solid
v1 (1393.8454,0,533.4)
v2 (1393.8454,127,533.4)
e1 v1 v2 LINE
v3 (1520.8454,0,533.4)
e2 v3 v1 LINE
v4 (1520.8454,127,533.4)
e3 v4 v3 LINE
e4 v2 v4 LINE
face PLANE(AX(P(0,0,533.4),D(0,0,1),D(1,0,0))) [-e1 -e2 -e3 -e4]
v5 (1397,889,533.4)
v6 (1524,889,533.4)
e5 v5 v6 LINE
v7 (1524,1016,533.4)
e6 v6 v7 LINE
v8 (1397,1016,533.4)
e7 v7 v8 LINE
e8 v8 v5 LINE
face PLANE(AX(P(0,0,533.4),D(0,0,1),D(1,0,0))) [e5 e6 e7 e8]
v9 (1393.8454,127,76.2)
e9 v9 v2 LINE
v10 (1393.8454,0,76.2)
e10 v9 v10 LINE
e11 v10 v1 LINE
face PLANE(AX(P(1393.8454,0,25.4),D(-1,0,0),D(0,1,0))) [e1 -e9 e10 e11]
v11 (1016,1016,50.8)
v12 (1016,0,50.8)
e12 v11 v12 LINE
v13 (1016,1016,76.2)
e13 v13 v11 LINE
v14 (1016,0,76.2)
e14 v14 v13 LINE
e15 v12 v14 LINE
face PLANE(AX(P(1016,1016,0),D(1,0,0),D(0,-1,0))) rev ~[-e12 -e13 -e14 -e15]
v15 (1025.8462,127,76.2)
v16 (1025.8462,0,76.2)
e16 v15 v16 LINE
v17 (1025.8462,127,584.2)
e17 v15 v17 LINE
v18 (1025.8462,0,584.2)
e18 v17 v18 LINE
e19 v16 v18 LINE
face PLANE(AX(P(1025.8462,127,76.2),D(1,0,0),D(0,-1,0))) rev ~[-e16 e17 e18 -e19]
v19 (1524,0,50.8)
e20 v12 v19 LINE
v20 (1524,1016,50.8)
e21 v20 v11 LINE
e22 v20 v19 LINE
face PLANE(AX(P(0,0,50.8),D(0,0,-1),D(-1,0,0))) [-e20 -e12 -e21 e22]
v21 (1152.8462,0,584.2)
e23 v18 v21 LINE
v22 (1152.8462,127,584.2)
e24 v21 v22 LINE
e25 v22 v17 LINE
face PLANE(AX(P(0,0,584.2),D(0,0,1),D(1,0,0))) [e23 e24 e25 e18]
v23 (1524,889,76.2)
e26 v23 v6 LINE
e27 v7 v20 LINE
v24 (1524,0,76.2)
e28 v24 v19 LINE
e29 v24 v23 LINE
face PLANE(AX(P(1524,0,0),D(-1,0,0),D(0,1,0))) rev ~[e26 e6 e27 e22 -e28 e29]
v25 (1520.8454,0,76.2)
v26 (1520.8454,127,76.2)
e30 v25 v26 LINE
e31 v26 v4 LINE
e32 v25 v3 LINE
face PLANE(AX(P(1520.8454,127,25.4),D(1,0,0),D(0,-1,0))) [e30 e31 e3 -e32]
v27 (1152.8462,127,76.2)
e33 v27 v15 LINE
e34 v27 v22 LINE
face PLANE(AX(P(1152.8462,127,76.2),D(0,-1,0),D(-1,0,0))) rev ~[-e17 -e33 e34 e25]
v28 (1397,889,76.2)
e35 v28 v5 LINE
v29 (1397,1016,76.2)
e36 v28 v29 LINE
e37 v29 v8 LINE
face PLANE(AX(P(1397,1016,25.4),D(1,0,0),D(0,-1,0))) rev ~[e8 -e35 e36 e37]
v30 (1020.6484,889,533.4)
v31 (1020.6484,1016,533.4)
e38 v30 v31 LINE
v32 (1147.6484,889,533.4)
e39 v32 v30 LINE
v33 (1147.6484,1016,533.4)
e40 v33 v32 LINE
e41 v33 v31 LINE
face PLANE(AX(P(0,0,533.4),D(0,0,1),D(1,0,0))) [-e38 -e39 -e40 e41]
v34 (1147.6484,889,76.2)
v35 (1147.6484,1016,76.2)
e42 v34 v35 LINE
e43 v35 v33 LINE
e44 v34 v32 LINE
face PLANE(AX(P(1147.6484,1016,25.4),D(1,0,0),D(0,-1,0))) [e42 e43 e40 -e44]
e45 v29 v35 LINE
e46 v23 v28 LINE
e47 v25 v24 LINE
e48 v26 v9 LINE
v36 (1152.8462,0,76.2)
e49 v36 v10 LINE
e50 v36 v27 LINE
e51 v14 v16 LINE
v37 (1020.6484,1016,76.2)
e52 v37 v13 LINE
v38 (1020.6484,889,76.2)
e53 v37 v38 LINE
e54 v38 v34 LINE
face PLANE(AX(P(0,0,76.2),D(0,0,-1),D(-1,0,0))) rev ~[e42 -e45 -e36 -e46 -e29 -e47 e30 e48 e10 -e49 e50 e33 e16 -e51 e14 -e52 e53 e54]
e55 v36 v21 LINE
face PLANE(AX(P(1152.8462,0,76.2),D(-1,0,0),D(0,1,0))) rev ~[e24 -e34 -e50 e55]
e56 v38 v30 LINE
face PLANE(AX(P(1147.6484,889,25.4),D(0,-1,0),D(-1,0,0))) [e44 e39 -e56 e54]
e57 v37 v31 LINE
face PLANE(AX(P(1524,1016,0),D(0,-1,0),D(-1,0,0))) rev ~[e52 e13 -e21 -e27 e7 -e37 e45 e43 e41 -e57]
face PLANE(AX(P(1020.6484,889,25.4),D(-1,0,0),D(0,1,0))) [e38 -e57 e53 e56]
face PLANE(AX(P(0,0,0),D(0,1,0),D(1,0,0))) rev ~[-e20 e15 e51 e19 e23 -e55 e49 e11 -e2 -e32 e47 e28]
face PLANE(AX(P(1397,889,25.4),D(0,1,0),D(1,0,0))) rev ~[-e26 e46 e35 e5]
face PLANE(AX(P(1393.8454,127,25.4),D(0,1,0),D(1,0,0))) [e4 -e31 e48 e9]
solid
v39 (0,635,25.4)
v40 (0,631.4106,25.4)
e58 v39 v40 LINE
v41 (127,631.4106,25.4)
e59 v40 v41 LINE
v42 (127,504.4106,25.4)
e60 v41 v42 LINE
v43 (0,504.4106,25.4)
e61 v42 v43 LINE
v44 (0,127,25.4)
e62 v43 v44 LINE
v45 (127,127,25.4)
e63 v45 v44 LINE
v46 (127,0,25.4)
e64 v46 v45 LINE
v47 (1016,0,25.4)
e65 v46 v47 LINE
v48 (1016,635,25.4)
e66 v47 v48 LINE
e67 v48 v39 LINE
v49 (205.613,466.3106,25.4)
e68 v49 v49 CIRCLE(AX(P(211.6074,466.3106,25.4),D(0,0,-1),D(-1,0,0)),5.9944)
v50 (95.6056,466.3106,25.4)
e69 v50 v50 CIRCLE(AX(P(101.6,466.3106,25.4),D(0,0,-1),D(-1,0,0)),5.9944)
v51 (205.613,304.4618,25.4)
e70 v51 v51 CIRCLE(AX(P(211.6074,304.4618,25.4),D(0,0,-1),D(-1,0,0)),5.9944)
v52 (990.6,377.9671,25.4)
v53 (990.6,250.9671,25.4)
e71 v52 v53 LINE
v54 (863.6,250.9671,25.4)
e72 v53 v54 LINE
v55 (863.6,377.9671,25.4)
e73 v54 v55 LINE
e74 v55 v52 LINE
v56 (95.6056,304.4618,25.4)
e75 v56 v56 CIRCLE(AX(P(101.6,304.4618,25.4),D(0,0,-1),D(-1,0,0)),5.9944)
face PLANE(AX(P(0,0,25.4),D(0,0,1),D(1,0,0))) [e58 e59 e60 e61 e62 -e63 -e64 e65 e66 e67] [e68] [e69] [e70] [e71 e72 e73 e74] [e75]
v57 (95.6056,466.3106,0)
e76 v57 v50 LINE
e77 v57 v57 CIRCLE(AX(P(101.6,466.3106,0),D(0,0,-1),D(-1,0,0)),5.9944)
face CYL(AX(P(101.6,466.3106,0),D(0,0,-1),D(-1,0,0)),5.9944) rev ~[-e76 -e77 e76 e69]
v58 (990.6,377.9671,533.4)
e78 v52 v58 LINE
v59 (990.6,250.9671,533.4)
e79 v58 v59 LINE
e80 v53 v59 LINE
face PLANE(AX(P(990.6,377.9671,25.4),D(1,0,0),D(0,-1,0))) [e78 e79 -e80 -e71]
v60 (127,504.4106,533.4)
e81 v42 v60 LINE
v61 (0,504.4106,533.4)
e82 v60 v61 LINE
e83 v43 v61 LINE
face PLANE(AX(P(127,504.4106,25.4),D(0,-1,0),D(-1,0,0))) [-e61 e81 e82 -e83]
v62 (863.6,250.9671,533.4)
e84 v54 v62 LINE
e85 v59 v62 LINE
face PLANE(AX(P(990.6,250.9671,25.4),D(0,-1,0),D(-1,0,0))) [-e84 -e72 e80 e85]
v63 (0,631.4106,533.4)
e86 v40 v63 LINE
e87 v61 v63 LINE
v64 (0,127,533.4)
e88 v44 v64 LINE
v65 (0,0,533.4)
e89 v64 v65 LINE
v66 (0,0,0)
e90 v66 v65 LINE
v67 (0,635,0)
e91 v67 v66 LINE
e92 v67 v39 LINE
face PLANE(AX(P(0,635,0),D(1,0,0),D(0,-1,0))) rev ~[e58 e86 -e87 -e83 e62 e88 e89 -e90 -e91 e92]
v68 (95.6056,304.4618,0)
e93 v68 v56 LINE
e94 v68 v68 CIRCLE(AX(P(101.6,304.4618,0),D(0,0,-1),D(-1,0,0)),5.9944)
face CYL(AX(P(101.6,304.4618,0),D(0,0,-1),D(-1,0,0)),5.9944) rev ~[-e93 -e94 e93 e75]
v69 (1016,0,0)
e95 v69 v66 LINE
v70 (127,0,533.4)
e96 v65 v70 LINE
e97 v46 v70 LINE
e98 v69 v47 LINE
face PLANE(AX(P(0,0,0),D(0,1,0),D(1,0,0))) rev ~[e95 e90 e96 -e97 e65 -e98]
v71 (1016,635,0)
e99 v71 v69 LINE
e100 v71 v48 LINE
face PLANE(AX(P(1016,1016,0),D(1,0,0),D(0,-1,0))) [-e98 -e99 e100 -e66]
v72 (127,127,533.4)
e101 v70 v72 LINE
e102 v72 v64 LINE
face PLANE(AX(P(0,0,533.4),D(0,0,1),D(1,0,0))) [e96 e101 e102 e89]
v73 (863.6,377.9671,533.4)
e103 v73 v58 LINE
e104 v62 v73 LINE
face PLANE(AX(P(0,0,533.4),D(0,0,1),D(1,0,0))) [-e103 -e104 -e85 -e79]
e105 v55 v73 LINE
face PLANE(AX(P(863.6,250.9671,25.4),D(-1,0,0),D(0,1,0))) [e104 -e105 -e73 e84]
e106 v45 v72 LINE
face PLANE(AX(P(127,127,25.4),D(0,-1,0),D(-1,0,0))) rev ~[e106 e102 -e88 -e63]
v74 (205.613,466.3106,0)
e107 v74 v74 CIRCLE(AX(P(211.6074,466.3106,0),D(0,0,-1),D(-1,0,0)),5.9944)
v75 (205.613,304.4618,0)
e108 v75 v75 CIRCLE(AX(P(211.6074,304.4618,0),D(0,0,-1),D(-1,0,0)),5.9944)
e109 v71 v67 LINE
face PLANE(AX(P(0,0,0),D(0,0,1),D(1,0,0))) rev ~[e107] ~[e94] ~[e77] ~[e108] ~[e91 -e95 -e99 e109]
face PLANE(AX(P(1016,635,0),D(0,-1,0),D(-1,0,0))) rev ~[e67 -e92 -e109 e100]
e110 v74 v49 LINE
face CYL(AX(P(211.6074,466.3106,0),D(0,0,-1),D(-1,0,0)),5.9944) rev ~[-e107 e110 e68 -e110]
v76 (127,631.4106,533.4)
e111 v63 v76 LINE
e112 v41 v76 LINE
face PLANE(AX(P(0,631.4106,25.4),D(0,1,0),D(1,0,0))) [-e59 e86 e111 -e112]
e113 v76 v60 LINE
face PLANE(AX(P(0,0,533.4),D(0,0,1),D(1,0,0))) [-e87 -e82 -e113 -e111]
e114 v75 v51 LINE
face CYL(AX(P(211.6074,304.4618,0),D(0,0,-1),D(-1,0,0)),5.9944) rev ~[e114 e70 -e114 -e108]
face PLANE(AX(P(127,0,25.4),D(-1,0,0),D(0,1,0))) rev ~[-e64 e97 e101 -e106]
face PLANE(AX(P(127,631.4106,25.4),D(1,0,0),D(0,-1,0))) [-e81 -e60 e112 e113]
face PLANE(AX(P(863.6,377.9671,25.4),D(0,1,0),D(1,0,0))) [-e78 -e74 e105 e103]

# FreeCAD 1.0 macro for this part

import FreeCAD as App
import Part
import Sketcher
Q = App.Units.Quantity


def add_polygon(sketch, points):
    """Adds a closed chain of lines whose ends are joined by coincident constraints."""
    first, n = sketch.GeometryCount, len(points)
    for a, b in zip(points, points[1:] + points[:1]):
        sketch.addGeometry(Part.LineSegment(App.Vector(*a, 0), App.Vector(*b, 0)), False)
    for i in range(n):
        sketch.addConstraint(Sketcher.Constraint("Coincident", first + i, 2, first + (i + 1) % n, 1))

doc = App.newDocument("Part")
params = doc.addObject("Spreadsheet::Sheet", "Params")
for row, (alias, value) in enumerate([
    ("sketch1_width", "60 in"),
    ("sketch1_width2", "20 in"),
    ("sketch1_height", "15 in"),
    ("pad1_length", "1 in"),
    ("sketch2_width", "5 in"),
    ("pad2_length", "20 in"),
    ("sketch3_diameter", "0.472 in"),
    ("pocket1_length", "20 in"),
    ("sketch4_width", "20 in"),
    ("sketch4_height", "40 in"),
    ("pad3_length", "3 in"),
    ("sketch5_width", "20 in"),
    ("sketch5_height", "40 in"),
    ("pocket2_length", "2 in"),
    ("sketch6_width", "5 in"),
    ("pad4_length", "20 in"),
    ("sketch7_width", "5 in"),
    ("pad5_length", "20 in"),
], start=1):
    params.set(f"A{row}", alias)
    params.set(f"B{row}", "=" + value)
    params.setAlias(f"B{row}", alias)

body = doc.addObject("PartDesign::Body", "Body")
body.AllowCompound = True

sketch1 = doc.addObject("Sketcher::SketchObject", "Sketch")
body.addObject(sketch1)
sketch1.AttachmentSupport = (doc.XY_Plane, [""])
sketch1.MapMode = "FlatFace"
add_polygon(sketch1, [(0, 635), (0, 0), (1524, 0), (1524, 1016), (1016, 1016), (1016, 635)])
sketch1.addConstraint(Sketcher.Constraint("Vertical", 0))
sketch1.addConstraint(Sketcher.Constraint("Horizontal", 1))
sketch1.addConstraint(Sketcher.Constraint("Vertical", 2))
sketch1.addConstraint(Sketcher.Constraint("Horizontal", 3))
sketch1.addConstraint(Sketcher.Constraint("Vertical", 4))
sketch1.addConstraint(Sketcher.Constraint("Horizontal", 5))
sketch1.addConstraint(Sketcher.Constraint("Coincident", 0, 2, -1, 1))
sketch1.addConstraint(Sketcher.Constraint("Equal", 5, 2))
sketch1.addConstraint(Sketcher.Constraint("DistanceX", 1, 1, 1, 2, Q("60 in")))
sketch1.addConstraint(Sketcher.Constraint("DistanceX", 3, 2, 3, 1, Q("20 in")))
sketch1.addConstraint(Sketcher.Constraint("DistanceY", 4, 2, 4, 1, Q("15 in")))
sketch1.setExpression("Constraints[14]", "Params.sketch1_width")
sketch1.setExpression("Constraints[15]", "Params.sketch1_width2")
sketch1.setExpression("Constraints[16]", "Params.sketch1_height")
pad1 = doc.addObject("PartDesign::Pad", "Pad")
body.addObject(pad1)
pad1.Profile = sketch1
pad1.setExpression("Length", "Params.pad1_length")

sketch2 = doc.addObject("Sketcher::SketchObject", "Sketch001")
body.addObject(sketch2)
sketch2.AttachmentSupport = (doc.XY_Plane, [""])
sketch2.MapMode = "FlatFace"
sketch2.AttachmentOffset = App.Placement(App.Vector(0, 0, 1 * 25.4), App.Rotation())
add_polygon(sketch2, [(127, 127), (0, 127), (0, 0), (127, 0)])
add_polygon(sketch2, [(127, 631.4106), (0, 631.4106), (0, 504.4106), (127, 504.4106)])
add_polygon(sketch2, [(1393.8454, 0), (1520.8454, 0), (1520.8454, 127), (1393.8454, 127)])
add_polygon(sketch2, [(1524, 889), (1524, 1016), (1397, 1016), (1397, 889)])
add_polygon(sketch2, [(1147.6484, 889), (1147.6484, 1016), (1020.6484, 1016), (1020.6484, 889)])
sketch2.addConstraint(Sketcher.Constraint("Horizontal", 0))
sketch2.addConstraint(Sketcher.Constraint("Vertical", 1))
sketch2.addConstraint(Sketcher.Constraint("Horizontal", 2))
sketch2.addConstraint(Sketcher.Constraint("Vertical", 3))
sketch2.addConstraint(Sketcher.Constraint("Horizontal", 4))
sketch2.addConstraint(Sketcher.Constraint("Vertical", 5))
sketch2.addConstraint(Sketcher.Constraint("Horizontal", 6))
sketch2.addConstraint(Sketcher.Constraint("Vertical", 7))
sketch2.addConstraint(Sketcher.Constraint("Horizontal", 8))
sketch2.addConstraint(Sketcher.Constraint("Vertical", 9))
sketch2.addConstraint(Sketcher.Constraint("Horizontal", 10))
sketch2.addConstraint(Sketcher.Constraint("Vertical", 11))
sketch2.addConstraint(Sketcher.Constraint("Vertical", 12))
sketch2.addConstraint(Sketcher.Constraint("Horizontal", 13))
sketch2.addConstraint(Sketcher.Constraint("Vertical", 14))
sketch2.addConstraint(Sketcher.Constraint("Horizontal", 15))
sketch2.addConstraint(Sketcher.Constraint("Vertical", 16))
sketch2.addConstraint(Sketcher.Constraint("Horizontal", 17))
sketch2.addConstraint(Sketcher.Constraint("Vertical", 18))
sketch2.addConstraint(Sketcher.Constraint("Horizontal", 19))
sketch2.addConstraint(Sketcher.Constraint("Coincident", 1, 2, -1, 1))
sketch2.addConstraint(Sketcher.Constraint("PointOnObject", 4, 2, -2))
sketch2.addConstraint(Sketcher.Constraint("PointOnObject", 8, 2, -1))
sketch2.addConstraint(Sketcher.Constraint("Horizontal", 3, 2, 9, 2))
sketch2.addConstraint(Sketcher.Constraint("Horizontal", 13, 2, 16, 2))
sketch2.addConstraint(Sketcher.Constraint("Horizontal", 15, 2, 18, 2))
sketch2.addConstraint(Sketcher.Constraint("Vertical", 3, 2, 6, 2))
sketch2.addConstraint(Sketcher.Constraint("Equal", 6, 8))
sketch2.addConstraint(Sketcher.Constraint("Equal", 10, 13))
sketch2.addConstraint(Sketcher.Constraint("Equal", 15, 17))
sketch2.addConstraint(Sketcher.Constraint("Equal", 19, 1))
sketch2.addConstraint(Sketcher.Constraint("Equal", 3, 5))
sketch2.addConstraint(Sketcher.Constraint("Equal", 11, 12))
sketch2.addConstraint(Sketcher.Constraint("DistanceX", 0, 2, 0, 1, Q("5 in")))
sketch2.addConstraint(Sketcher.Constraint("DistanceX", -1, 1, 12, 2, Q("60 in")))
sketch2.addConstraint(Sketcher.Constraint("DistanceY", -1, 1, 12, 2, Q("40 in")))
sketch2.addConstraint(Sketcher.Constraint("DistanceX", -1, 1, 16, 2, Q("45.183 in")))
sketch2.addConstraint(Sketcher.Constraint("DistanceX", -1, 1, 8, 2, Q("59.8758 in")))
sketch2.addConstraint(Sketcher.Constraint("DistanceY", -1, 1, 4, 2, Q("631.4106 mm")))
sketch2.setExpression("Constraints[53]", "Params.sketch2_width")
pad2 = doc.addObject("PartDesign::Pad", "Pad001")
body.addObject(pad2)
pad2.Profile = sketch2
pad2.setExpression("Length", "Params.pad2_length")

sketch3 = doc.addObject("Sketcher::SketchObject", "Sketch002")
body.addObject(sketch3)
sketch3.AttachmentSupport = (doc.XY_Plane, [""])
sketch3.MapMode = "FlatFace"
sketch3.addGeometry(Part.Circle(App.Vector(101.6, 466.3106, 0), App.Vector(0, 0, 1), 5.9944), False)
sketch3.addGeometry(Part.Circle(App.Vector(101.6, 304.4618, 0), App.Vector(0, 0, 1), 5.9944), False)
sketch3.addGeometry(Part.Circle(App.Vector(211.6074, 304.4618, 0), App.Vector(0, 0, 1), 5.9944), False)
sketch3.addGeometry(Part.Circle(App.Vector(211.6074, 466.3106, 0), App.Vector(0, 0, 1), 5.9944), False)
sketch3.addConstraint(Sketcher.Constraint("Equal", 0, 1))
sketch3.addConstraint(Sketcher.Constraint("Equal", 1, 2))
sketch3.addConstraint(Sketcher.Constraint("Equal", 2, 3))
sketch3.addConstraint(Sketcher.Constraint("Horizontal", 1, 3, 2, 3))
sketch3.addConstraint(Sketcher.Constraint("Horizontal", 0, 3, 3, 3))
sketch3.addConstraint(Sketcher.Constraint("Vertical", 0, 3, 1, 3))
sketch3.addConstraint(Sketcher.Constraint("Vertical", 2, 3, 3, 3))
sketch3.addConstraint(Sketcher.Constraint("Diameter", 0, Q("0.472 in")))
sketch3.addConstraint(Sketcher.Constraint("DistanceX", -1, 1, 0, 3, Q("4 in")))
sketch3.addConstraint(Sketcher.Constraint("DistanceY", 1, 3, 0, 3, Q("6.372 in")))
sketch3.addConstraint(Sketcher.Constraint("DistanceX", 1, 3, 2, 3, Q("4.331 in")))
sketch3.addConstraint(Sketcher.Constraint("DistanceY", -1, 1, 0, 3, Q("466.3106 mm")))
sketch3.setExpression("Constraints[7]", "Params.sketch3_diameter")
pocket1 = doc.addObject("PartDesign::Pocket", "Pocket")
body.addObject(pocket1)
pocket1.Profile = sketch3
pocket1.setExpression("Length", "Params.pocket1_length")
pocket1.Reversed = True

sketch4 = doc.addObject("Sketcher::SketchObject", "Sketch003")
body.addObject(sketch4)
sketch4.AttachmentSupport = (doc.XY_Plane, [""])
sketch4.MapMode = "FlatFace"
add_polygon(sketch4, [(1016, 0), (1016, 1016), (1524, 1016), (1524, 0)])
sketch4.addConstraint(Sketcher.Constraint("Vertical", 0))
sketch4.addConstraint(Sketcher.Constraint("Horizontal", 1))
sketch4.addConstraint(Sketcher.Constraint("Vertical", 2))
sketch4.addConstraint(Sketcher.Constraint("Horizontal", 3))
sketch4.addConstraint(Sketcher.Constraint("PointOnObject", 2, 2, -1))
sketch4.addConstraint(Sketcher.Constraint("DistanceX", 1, 1, 1, 2, Q("20 in")))
sketch4.addConstraint(Sketcher.Constraint("DistanceY", 0, 1, 0, 2, Q("40 in")))
sketch4.addConstraint(Sketcher.Constraint("DistanceX", -1, 1, 0, 2, Q("40 in")))
sketch4.setExpression("Constraints[9]", "Params.sketch4_width")
sketch4.setExpression("Constraints[10]", "Params.sketch4_height")
pad3 = doc.addObject("PartDesign::Pad", "Pad002")
body.addObject(pad3)
pad3.Profile = sketch4
pad3.setExpression("Length", "Params.pad3_length")

sketch5 = doc.addObject("Sketcher::SketchObject", "Sketch004")
body.addObject(sketch5)
sketch5.AttachmentSupport = (doc.XY_Plane, [""])
sketch5.MapMode = "FlatFace"
add_polygon(sketch5, [(1524, 1016), (1524, 0), (1016, 0), (1016, 1016)])
sketch5.addConstraint(Sketcher.Constraint("Vertical", 0))
sketch5.addConstraint(Sketcher.Constraint("Horizontal", 1))
sketch5.addConstraint(Sketcher.Constraint("Vertical", 2))
sketch5.addConstraint(Sketcher.Constraint("Horizontal", 3))
sketch5.addConstraint(Sketcher.Constraint("PointOnObject", 0, 2, -1))
sketch5.addConstraint(Sketcher.Constraint("DistanceX", 1, 2, 1, 1, Q("20 in")))
sketch5.addConstraint(Sketcher.Constraint("DistanceY", 0, 2, 0, 1, Q("40 in")))
sketch5.addConstraint(Sketcher.Constraint("DistanceX", -1, 1, 0, 2, Q("60 in")))
sketch5.setExpression("Constraints[9]", "Params.sketch5_width")
sketch5.setExpression("Constraints[10]", "Params.sketch5_height")
pocket2 = doc.addObject("PartDesign::Pocket", "Pocket001")
body.addObject(pocket2)
pocket2.Profile = sketch5
pocket2.setExpression("Length", "Params.pocket2_length")
pocket2.Reversed = True

sketch6 = doc.addObject("Sketcher::SketchObject", "Sketch005")
body.addObject(sketch6)
sketch6.AttachmentSupport = (doc.XY_Plane, [""])
sketch6.MapMode = "FlatFace"
sketch6.AttachmentOffset = App.Placement(App.Vector(0, 0, 1 * 25.4), App.Rotation())
add_polygon(sketch6, [(990.6, 377.9671), (863.6, 377.9671), (863.6, 250.9671), (990.6, 250.9671)])
sketch6.addConstraint(Sketcher.Constraint("Horizontal", 0))
sketch6.addConstraint(Sketcher.Constraint("Vertical", 1))
sketch6.addConstraint(Sketcher.Constraint("Horizontal", 2))
sketch6.addConstraint(Sketcher.Constraint("Vertical", 3))
sketch6.addConstraint(Sketcher.Constraint("Equal", 2, 1))
sketch6.addConstraint(Sketcher.Constraint("DistanceX", 0, 2, 0, 1, Q("5 in")))
sketch6.addConstraint(Sketcher.Constraint("DistanceX", -1, 1, 0, 2, Q("34 in")))
sketch6.addConstraint(Sketcher.Constraint("DistanceY", -1, 1, 0, 2, Q("14.8806 in")))
sketch6.setExpression("Constraints[9]", "Params.sketch6_width")
pad4 = doc.addObject("PartDesign::Pad", "Pad003")
body.addObject(pad4)
pad4.Profile = sketch6
pad4.setExpression("Length", "Params.pad4_length")

sketch7 = doc.addObject("Sketcher::SketchObject", "Sketch006")
body.addObject(sketch7)
sketch7.AttachmentSupport = (doc.XY_Plane, [""])
sketch7.MapMode = "FlatFace"
sketch7.AttachmentOffset = App.Placement(App.Vector(0, 0, 3 * 25.4), App.Rotation())
add_polygon(sketch7, [(1025.8462, 127), (1025.8462, 0), (1152.8462, 0), (1152.8462, 127)])
sketch7.addConstraint(Sketcher.Constraint("Vertical", 0))
sketch7.addConstraint(Sketcher.Constraint("Horizontal", 1))
sketch7.addConstraint(Sketcher.Constraint("Vertical", 2))
sketch7.addConstraint(Sketcher.Constraint("Horizontal", 3))
sketch7.addConstraint(Sketcher.Constraint("PointOnObject", 0, 2, -1))
sketch7.addConstraint(Sketcher.Constraint("Equal", 3, 0))
sketch7.addConstraint(Sketcher.Constraint("DistanceX", 1, 1, 1, 2, Q("5 in")))
sketch7.addConstraint(Sketcher.Constraint("DistanceX", -1, 1, 0, 2, Q("1025.8462 mm")))
sketch7.setExpression("Constraints[10]", "Params.sketch7_width")
pad5 = doc.addObject("PartDesign::Pad", "Pad004")
body.addObject(pad5)
pad5.Profile = sketch7
pad5.setExpression("Length", "Params.pad5_length")

doc.recompute()
